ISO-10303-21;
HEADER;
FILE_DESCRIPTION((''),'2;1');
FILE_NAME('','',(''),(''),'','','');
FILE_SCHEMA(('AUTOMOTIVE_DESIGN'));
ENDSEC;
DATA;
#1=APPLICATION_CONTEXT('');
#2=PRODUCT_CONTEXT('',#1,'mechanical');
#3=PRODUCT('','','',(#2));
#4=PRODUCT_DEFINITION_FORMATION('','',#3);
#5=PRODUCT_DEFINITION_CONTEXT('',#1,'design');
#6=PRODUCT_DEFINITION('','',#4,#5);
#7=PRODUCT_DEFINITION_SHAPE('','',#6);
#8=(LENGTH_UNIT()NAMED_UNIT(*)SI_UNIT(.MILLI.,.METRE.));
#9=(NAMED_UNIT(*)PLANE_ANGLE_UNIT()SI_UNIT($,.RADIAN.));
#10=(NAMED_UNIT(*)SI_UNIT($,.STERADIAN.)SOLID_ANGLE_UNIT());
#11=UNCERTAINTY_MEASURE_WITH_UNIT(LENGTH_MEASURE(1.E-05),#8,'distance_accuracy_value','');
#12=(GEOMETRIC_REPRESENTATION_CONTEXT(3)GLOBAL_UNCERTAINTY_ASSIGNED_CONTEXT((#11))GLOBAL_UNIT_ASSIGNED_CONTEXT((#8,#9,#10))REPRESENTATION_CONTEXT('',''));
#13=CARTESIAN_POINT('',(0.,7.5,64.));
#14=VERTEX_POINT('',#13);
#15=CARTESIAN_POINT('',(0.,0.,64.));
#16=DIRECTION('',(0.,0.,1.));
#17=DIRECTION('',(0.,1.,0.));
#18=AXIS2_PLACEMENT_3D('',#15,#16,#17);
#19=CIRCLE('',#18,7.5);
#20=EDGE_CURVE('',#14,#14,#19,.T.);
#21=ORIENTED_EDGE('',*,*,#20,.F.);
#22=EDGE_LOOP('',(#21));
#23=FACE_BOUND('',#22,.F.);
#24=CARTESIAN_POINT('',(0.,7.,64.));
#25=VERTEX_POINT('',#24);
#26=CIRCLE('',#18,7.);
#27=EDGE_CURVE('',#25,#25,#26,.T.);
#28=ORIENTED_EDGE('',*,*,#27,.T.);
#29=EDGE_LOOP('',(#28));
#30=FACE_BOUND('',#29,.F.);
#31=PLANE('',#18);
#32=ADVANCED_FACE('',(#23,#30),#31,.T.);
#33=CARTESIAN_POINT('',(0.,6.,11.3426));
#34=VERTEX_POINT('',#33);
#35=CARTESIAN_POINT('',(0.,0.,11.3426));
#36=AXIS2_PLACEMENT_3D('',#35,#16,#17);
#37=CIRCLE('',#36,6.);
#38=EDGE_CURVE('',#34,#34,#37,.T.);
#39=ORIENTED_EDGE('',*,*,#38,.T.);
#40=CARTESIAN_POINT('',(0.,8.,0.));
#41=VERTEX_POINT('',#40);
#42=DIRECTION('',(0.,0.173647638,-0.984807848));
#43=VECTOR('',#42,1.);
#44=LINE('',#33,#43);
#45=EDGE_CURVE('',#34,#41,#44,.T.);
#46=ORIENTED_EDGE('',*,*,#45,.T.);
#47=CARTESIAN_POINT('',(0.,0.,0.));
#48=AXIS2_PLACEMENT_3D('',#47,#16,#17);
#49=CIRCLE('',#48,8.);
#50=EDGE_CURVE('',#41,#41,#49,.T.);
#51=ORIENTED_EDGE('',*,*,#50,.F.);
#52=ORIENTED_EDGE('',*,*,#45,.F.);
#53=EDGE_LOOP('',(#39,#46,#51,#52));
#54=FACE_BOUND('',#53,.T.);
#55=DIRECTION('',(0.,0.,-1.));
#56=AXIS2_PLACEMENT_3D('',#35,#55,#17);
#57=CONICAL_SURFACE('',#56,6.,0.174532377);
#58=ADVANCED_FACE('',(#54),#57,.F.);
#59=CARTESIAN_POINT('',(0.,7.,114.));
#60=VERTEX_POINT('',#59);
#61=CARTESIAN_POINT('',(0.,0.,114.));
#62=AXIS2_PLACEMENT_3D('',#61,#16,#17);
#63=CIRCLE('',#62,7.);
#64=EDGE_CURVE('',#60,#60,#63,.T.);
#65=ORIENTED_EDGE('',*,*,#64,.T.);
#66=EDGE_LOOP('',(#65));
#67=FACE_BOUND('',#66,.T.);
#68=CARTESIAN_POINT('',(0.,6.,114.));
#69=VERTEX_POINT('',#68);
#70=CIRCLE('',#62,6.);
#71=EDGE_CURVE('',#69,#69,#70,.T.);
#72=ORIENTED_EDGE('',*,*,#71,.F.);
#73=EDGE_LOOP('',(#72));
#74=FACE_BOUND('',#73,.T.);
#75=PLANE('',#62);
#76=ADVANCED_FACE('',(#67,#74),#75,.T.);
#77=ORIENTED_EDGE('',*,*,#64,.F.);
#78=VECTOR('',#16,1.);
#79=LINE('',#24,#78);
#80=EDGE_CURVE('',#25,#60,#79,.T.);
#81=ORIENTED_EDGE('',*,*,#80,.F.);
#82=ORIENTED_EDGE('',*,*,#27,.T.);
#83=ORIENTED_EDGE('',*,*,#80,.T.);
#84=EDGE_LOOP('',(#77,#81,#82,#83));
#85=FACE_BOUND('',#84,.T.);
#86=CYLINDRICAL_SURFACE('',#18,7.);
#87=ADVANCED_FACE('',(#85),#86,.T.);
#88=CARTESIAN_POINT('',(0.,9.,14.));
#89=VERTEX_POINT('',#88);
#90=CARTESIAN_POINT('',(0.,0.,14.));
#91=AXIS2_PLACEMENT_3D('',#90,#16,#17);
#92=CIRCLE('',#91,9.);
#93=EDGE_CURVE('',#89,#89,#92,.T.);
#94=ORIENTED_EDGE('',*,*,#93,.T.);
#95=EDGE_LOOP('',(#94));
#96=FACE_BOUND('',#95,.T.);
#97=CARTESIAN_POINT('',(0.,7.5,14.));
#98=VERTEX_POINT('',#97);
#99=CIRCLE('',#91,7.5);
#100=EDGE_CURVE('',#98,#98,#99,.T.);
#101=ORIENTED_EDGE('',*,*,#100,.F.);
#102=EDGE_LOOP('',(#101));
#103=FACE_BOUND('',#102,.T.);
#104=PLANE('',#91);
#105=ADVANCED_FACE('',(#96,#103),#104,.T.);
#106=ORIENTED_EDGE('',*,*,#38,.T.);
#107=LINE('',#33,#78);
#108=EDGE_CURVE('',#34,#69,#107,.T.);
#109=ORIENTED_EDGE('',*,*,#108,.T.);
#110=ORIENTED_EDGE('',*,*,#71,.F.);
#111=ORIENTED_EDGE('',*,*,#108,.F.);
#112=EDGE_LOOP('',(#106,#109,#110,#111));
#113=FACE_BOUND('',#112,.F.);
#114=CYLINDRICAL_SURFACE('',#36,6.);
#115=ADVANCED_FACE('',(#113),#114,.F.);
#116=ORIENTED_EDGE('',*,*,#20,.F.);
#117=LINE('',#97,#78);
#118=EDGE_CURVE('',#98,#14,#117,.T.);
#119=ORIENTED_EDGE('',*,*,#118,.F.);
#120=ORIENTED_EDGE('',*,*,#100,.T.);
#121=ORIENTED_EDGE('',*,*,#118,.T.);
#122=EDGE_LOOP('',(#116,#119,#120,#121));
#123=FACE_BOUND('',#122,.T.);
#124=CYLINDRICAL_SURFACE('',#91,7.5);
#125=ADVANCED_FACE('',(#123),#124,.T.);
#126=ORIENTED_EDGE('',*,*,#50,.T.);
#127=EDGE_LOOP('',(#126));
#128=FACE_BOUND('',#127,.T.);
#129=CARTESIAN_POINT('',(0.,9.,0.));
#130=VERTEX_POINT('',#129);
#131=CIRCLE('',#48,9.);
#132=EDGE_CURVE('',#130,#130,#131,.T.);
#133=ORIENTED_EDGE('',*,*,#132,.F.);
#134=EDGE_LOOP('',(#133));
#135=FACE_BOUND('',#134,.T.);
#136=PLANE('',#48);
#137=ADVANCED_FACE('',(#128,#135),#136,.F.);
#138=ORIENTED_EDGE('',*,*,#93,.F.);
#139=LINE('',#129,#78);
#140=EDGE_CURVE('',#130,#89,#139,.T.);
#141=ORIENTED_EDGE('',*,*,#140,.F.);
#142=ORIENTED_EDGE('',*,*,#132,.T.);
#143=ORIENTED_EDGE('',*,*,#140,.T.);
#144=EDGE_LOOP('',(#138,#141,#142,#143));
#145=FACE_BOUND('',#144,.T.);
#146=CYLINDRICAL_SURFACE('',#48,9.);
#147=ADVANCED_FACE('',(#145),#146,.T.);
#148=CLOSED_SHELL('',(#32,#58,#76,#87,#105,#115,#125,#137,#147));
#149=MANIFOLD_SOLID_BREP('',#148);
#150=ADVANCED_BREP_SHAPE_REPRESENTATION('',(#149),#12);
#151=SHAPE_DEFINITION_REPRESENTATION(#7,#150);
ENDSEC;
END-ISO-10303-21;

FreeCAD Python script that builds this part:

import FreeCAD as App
import Part
import Sketcher

V = App.Vector
Q = App.Units.Quantity

doc = App.newDocument("Part")
params = doc.addObject("Spreadsheet::Sheet", "Params")
for row, (alias, value) in enumerate([
    ("sketch1_width", "1 mm"),
    ("sketch1_height", "14 mm"),
    ("sketch1_height2", "50 mm"),
    ("sketch1_width2", "1.5 mm"),
    ("revolution_angle", "360 deg"),
], start=1):
    params.set(f"A{row}", alias)
    params.set(f"B{row}", "=" + value)
    params.setAlias(f"B{row}", alias)

body = doc.addObject("PartDesign::Body", "Body")

sketch1 = doc.addObject("Sketcher::SketchObject", "Sketch")
body.addObject(sketch1)
sketch1.AttachmentSupport = (doc.YZ_Plane, [""])
sketch1.MapMode = "FlatFace"
sketch1.addGeometry(Part.LineSegment(V(6, 114, 0), V(6, 11.3426, 0)), False)
sketch1.addGeometry(Part.LineSegment(V(6, 11.3426, 0), V(8, 0, 0)), False)
sketch1.addGeometry(Part.LineSegment(V(8, 0, 0), V(9, 0, 0)), False)
sketch1.addGeometry(Part.LineSegment(V(9, 0, 0), V(9, 14, 0)), False)
sketch1.addGeometry(Part.LineSegment(V(9, 14, 0), V(7.5, 14, 0)), False)
sketch1.addGeometry(Part.LineSegment(V(7.5, 14, 0), V(7.5, 64, 0)), False)
sketch1.addGeometry(Part.LineSegment(V(7.5, 64, 0), V(7, 64, 0)), False)
sketch1.addGeometry(Part.LineSegment(V(7, 64, 0), V(7, 114, 0)), False)
sketch1.addGeometry(Part.LineSegment(V(7, 114, 0), V(6, 114, 0)), False)
sketch1.addConstraint(Sketcher.Constraint("Coincident", 0, 2, 1, 1))
sketch1.addConstraint(Sketcher.Constraint("Coincident", 1, 2, 2, 1))
sketch1.addConstraint(Sketcher.Constraint("Coincident", 2, 2, 3, 1))
sketch1.addConstraint(Sketcher.Constraint("Coincident", 3, 2, 4, 1))
sketch1.addConstraint(Sketcher.Constraint("Coincident", 4, 2, 5, 1))
sketch1.addConstraint(Sketcher.Constraint("Coincident", 5, 2, 6, 1))
sketch1.addConstraint(Sketcher.Constraint("Coincident", 6, 2, 7, 1))
sketch1.addConstraint(Sketcher.Constraint("Coincident", 7, 2, 8, 1))
sketch1.addConstraint(Sketcher.Constraint("Coincident", 8, 2, 0, 1))
sketch1.addConstraint(Sketcher.Constraint("Vertical", 0))
sketch1.addConstraint(Sketcher.Constraint("Horizontal", 2))
sketch1.addConstraint(Sketcher.Constraint("Vertical", 3))
sketch1.addConstraint(Sketcher.Constraint("Horizontal", 4))
sketch1.addConstraint(Sketcher.Constraint("Vertical", 5))
sketch1.addConstraint(Sketcher.Constraint("Horizontal", 6))
sketch1.addConstraint(Sketcher.Constraint("Vertical", 7))
sketch1.addConstraint(Sketcher.Constraint("Horizontal", 8))
sketch1.addConstraint(Sketcher.Constraint("PointOnObject", 1, 2, -1))
sketch1.addConstraint(Sketcher.Constraint("Equal", 2, 8))
sketch1.addConstraint(Sketcher.Constraint("Equal", 5, 7))
sketch1.addConstraint(Sketcher.Constraint("DistanceX", 2, 1, 2, 2, 1.0))
sketch1.addConstraint(Sketcher.Constraint("DistanceY", 3, 1, 3, 2, 14.0))
sketch1.addConstraint(Sketcher.Constraint("DistanceY", 5, 1, 5, 2, 50.0))
sketch1.addConstraint(Sketcher.Constraint("DistanceX", 6, 2, 1, 2, 1.0))
sketch1.addConstraint(Sketcher.Constraint("Angle", 1, Q("-80 deg")))
sketch1.addConstraint(Sketcher.Constraint("DistanceX", 4, 2, 4, 1, 1.5))
sketch1.addConstraint(Sketcher.Constraint("DistanceX", -1, 1, 0, 2, 6.0))
sketch1.setExpression("Constraints[20]", "Params.sketch1_width")
sketch1.setExpression("Constraints[21]", "Params.sketch1_height")
sketch1.setExpression("Constraints[22]", "Params.sketch1_height2")
sketch1.setExpression("Constraints[25]", "Params.sketch1_width2")
revolution = doc.addObject("PartDesign::Revolution", "Revolution")
body.addObject(revolution)
revolution.Profile = sketch1
revolution.ReferenceAxis = (sketch1, ["V_Axis"])
revolution.setExpression("Angle", "Params.revolution_angle")

doc.recompute()
